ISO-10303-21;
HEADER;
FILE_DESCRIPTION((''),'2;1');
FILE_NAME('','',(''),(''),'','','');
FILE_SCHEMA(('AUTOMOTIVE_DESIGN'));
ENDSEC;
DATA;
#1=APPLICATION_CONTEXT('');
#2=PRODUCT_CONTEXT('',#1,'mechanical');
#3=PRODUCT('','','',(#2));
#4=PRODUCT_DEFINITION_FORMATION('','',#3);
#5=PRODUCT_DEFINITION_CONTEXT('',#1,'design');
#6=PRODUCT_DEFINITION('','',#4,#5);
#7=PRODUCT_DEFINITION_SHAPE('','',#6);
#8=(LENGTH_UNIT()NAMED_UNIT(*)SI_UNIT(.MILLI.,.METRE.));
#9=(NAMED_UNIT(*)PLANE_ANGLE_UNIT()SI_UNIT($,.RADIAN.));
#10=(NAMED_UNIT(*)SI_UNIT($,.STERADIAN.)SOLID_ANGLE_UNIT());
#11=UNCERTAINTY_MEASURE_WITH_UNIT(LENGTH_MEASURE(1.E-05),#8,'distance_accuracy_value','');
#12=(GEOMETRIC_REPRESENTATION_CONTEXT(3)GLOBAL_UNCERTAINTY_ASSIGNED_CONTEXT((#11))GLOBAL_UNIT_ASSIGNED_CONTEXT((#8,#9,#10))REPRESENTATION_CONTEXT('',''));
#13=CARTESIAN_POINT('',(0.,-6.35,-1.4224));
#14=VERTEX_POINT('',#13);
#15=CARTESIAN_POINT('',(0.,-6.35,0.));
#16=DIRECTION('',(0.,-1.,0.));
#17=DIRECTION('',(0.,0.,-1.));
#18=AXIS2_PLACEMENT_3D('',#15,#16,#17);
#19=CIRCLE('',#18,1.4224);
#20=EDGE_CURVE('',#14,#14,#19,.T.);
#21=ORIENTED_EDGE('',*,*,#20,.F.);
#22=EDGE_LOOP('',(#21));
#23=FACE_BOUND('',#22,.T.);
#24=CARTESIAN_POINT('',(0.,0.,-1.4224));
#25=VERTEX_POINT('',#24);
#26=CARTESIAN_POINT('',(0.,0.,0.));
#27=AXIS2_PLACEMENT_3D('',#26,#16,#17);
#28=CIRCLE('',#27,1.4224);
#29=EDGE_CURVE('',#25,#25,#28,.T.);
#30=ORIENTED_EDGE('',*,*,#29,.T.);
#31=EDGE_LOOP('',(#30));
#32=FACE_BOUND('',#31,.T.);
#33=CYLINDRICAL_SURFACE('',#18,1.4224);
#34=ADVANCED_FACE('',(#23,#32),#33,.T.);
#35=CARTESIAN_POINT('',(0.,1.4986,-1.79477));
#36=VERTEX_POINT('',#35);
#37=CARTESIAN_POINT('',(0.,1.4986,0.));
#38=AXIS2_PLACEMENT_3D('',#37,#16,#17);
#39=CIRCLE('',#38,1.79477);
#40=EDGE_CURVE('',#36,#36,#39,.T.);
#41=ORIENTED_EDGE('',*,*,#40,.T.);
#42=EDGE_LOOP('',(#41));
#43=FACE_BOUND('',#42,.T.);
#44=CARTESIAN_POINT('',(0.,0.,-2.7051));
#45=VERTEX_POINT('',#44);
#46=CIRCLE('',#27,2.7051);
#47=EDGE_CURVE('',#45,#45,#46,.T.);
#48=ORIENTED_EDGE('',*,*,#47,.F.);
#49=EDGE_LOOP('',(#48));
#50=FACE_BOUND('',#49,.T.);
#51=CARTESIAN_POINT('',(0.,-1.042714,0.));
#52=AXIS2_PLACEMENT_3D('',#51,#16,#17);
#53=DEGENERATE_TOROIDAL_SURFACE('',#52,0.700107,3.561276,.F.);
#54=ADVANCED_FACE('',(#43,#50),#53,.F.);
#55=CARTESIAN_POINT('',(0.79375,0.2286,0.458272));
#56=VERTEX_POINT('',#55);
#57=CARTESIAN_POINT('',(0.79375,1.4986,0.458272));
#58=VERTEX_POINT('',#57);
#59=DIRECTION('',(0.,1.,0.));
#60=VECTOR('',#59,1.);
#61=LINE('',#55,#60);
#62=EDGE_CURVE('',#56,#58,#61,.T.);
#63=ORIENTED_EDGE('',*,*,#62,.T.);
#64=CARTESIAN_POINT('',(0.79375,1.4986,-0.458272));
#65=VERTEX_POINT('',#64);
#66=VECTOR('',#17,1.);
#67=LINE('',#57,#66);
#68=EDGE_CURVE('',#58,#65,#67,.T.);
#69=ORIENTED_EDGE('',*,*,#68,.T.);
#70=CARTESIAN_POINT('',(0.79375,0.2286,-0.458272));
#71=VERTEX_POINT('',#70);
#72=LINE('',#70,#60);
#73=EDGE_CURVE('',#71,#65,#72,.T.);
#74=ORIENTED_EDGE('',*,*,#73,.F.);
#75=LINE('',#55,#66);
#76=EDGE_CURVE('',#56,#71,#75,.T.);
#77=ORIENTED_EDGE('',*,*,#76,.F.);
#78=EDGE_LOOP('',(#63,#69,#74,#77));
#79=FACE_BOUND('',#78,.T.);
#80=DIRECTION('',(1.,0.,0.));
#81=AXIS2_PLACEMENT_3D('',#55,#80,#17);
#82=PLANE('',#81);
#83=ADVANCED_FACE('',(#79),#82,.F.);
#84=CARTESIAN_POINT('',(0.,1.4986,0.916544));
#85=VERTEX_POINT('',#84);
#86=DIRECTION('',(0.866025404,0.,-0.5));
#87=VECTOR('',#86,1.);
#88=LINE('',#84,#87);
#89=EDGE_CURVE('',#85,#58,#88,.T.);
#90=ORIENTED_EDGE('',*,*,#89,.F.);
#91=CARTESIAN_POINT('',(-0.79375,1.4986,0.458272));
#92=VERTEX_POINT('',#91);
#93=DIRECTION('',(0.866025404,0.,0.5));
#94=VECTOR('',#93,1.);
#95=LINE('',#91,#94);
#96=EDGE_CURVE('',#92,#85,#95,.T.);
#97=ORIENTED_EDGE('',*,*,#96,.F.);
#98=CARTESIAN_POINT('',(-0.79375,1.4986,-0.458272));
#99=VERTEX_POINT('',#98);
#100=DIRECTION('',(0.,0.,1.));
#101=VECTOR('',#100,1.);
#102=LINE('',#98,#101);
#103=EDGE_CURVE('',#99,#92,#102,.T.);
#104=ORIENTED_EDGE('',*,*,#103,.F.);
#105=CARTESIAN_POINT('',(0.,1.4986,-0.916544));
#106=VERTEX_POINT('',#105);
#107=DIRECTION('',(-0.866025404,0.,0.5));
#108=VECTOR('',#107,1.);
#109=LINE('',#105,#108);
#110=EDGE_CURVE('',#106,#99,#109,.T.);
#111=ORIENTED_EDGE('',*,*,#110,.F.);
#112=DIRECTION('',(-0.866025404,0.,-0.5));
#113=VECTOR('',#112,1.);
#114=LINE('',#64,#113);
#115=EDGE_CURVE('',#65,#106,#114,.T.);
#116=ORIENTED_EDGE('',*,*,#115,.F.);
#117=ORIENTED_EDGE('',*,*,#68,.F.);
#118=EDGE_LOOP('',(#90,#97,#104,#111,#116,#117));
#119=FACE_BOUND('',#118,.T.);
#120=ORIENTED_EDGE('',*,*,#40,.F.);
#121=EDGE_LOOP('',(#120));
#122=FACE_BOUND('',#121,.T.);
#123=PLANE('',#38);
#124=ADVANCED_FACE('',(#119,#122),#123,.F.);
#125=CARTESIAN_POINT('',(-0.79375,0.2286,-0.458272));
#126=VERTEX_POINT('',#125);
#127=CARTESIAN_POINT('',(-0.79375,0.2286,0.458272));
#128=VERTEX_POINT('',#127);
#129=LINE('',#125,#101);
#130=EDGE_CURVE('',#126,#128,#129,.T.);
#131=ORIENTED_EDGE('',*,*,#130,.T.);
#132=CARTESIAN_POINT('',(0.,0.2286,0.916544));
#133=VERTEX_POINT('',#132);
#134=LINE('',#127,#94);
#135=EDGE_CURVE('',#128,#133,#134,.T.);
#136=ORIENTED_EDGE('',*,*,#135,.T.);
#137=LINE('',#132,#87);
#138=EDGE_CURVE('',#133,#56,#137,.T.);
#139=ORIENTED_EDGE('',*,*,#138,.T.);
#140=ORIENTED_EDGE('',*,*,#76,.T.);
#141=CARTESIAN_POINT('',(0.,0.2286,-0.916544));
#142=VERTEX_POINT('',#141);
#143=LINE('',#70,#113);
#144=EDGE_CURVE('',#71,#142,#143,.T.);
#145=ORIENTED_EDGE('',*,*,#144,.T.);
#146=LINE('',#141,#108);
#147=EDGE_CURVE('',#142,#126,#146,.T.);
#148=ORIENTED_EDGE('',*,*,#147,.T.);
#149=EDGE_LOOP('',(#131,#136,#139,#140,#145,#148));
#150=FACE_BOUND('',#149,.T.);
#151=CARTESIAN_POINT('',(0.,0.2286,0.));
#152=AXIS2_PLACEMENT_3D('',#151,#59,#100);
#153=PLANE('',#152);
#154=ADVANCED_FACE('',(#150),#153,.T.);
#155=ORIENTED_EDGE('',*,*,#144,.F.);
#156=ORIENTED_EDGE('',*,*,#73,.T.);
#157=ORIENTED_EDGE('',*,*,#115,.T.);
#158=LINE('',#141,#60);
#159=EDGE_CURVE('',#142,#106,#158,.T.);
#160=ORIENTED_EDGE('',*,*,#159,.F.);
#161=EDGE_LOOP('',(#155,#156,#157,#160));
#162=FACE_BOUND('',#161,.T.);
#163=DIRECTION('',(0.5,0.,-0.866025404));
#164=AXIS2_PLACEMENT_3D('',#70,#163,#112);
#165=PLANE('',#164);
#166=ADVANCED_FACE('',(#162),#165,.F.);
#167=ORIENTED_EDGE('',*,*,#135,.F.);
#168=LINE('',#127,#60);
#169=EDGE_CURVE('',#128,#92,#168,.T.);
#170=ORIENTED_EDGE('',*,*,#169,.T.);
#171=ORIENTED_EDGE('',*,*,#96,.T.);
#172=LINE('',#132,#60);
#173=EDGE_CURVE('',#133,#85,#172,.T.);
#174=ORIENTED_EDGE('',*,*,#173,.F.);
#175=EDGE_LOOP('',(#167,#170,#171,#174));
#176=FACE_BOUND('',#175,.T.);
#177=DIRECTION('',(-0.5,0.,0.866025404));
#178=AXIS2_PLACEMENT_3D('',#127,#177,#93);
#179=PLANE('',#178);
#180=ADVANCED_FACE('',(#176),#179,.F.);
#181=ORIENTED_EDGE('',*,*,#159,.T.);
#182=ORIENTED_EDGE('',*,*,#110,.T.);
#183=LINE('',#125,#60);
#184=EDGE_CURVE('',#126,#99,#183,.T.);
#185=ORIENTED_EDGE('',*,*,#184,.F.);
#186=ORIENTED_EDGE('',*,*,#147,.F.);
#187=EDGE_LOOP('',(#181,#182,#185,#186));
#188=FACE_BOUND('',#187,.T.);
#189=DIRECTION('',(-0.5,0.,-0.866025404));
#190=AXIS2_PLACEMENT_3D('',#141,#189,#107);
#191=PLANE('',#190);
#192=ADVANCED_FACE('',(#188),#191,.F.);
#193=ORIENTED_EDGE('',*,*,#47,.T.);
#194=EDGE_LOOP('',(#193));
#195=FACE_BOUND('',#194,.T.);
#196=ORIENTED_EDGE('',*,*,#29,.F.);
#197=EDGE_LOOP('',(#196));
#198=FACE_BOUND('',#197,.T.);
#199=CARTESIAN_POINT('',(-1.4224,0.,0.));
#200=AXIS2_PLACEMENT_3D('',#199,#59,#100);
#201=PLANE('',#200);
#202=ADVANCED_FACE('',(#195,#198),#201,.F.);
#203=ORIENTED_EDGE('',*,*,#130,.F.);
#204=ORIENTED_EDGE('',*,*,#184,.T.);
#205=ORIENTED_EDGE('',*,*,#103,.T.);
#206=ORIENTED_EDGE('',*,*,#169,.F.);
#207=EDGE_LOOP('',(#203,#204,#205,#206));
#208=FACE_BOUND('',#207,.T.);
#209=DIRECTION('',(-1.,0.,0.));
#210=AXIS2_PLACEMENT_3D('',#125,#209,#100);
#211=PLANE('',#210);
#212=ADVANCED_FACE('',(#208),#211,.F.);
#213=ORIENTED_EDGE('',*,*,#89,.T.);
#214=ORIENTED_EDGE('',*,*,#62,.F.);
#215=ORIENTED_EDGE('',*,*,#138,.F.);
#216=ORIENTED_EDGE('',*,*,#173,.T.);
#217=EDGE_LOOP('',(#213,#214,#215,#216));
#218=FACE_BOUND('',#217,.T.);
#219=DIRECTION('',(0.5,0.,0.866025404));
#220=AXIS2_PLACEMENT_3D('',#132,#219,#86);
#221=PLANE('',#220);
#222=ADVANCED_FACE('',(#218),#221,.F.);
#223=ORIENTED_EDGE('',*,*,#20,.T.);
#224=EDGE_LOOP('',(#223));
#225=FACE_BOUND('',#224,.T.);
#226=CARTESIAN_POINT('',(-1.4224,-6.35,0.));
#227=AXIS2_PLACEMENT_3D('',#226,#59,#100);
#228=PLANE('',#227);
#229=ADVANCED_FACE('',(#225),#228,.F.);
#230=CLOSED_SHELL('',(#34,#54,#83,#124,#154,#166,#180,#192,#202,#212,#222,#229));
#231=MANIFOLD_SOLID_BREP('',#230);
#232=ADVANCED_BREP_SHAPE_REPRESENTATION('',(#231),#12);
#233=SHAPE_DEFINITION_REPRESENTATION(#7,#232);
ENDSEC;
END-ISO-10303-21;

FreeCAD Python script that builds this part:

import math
import FreeCAD as App
import Part
import Sketcher
from FreeCAD import Vector
Q = App.Units.Quantity


def add_polygon(sketch, points):
    """Adds a closed chain of lines whose ends are joined by coincident constraints."""
    first, n = sketch.GeometryCount, len(points)
    for a, b in zip(points, points[1:] + points[:1]):
        sketch.addGeometry(Part.LineSegment(App.Vector(*a, 0), App.Vector(*b, 0)), False)
    for i in range(n):
        sketch.addConstraint(Sketcher.Constraint("Coincident", first + i, 2, first + (i + 1) % n, 1))

doc = App.newDocument("Part")
body = doc.addObject("PartDesign::Body", "Body")

# Sketch on XY plane
sketch1 = body.newObject("Sketcher::SketchObject", "Sketch")
sketch1.AttachmentSupport = (doc.getObject("XY_Plane"), [""])
sketch1.MapMode = "FlatFace"
sketch1.addGeometry(Part.LineSegment(Vector(-2.7051, 0, 0), Vector(-1.4224, 0, 0)), False)
sketch1.addGeometry(Part.LineSegment(Vector(-1.4224, 0, 0), Vector(-1.4224, -6.35, 0)), False)
sketch1.addGeometry(Part.LineSegment(Vector(-1.4224, -6.35, 0), Vector(0, -6.35, 0)), False)
sketch1.addGeometry(Part.LineSegment(Vector(0, -6.35, 0), Vector(0, 1.4986, 0)), False)
sketch1.addGeometry(Part.LineSegment(Vector(0, 1.4986, 0), Vector(-1.79477, 1.4986, 0)), False)
sketch1.addGeometry(Part.ArcOfCircle(Part.Circle(Vector(0.700107, -1.042714, 0), Vector(0, 0, 1), 3.561276), math.radians(134.471714), math.radians(162.974808)), False)
sketch1.addConstraint(Sketcher.Constraint("Coincident", 0, 2, 1, 1))
sketch1.addConstraint(Sketcher.Constraint("Coincident", 1, 2, 2, 1))
sketch1.addConstraint(Sketcher.Constraint("Coincident", 2, 2, 3, 1))
sketch1.addConstraint(Sketcher.Constraint("Coincident", 3, 2, 4, 1))
sketch1.addConstraint(Sketcher.Constraint("Coincident", 4, 2, 5, 1))
sketch1.addConstraint(Sketcher.Constraint("Coincident", 5, 2, 0, 1))
sketch1.addConstraint(Sketcher.Constraint("Horizontal", 0))
sketch1.addConstraint(Sketcher.Constraint("Vertical", 1))
sketch1.addConstraint(Sketcher.Constraint("Horizontal", 2))
sketch1.addConstraint(Sketcher.Constraint("Vertical", 3))
sketch1.addConstraint(Sketcher.Constraint("Horizontal", 4))
sketch1.addConstraint(Sketcher.Constraint("PointOnObject", 0, 2, -1))
sketch1.addConstraint(Sketcher.Constraint("PointOnObject", 2, 2, -2))
sketch1.addConstraint(Sketcher.Constraint("DistanceY", 1, 2, 1, 1, Q("0.25 in")))
sketch1.addConstraint(Sketcher.Constraint("DistanceX", 2, 1, 2, 2, Q("0.056 in")))
sketch1.addConstraint(Sketcher.Constraint("DistanceY", 3, 1, 3, 2, Q("0.309 in")))
sketch1.addConstraint(Sketcher.Constraint("DistanceX", 0, 1, 0, 2, Q("0.0505 in")))
sketch1.addConstraint(Sketcher.Constraint("Radius", 5, 3.561276))
sketch1.addConstraint(Sketcher.Constraint("DistanceX", 4, 2, 4, 1, 1.79477))
revolution = body.newObject("PartDesign::Revolution", "Revolution")
revolution.Profile = sketch1
revolution.ReferenceAxis = (sketch1, ["V_Axis"])
revolution.Angle = 360

# Sketch on XZ plane
sketch2 = body.newObject("Sketcher::SketchObject", "Sketch001")
sketch2.AttachmentSupport = (doc.getObject("XZ_Plane"), [""])
sketch2.MapMode = "FlatFace"
sketch2.AttachmentOffset = App.Placement(Vector(0, 0, -0.059 * 25.4), App.Rotation())
add_polygon(sketch2, [(-0.79375, -0.458272), (-0.79375, 0.458272), (0, 0.916544), (0.79375, 0.458272), (0.79375, -0.458272), (0, -0.916544)])  # lines 0-5
sketch2.addConstraint(Sketcher.Constraint("Vertical", 0))
sketch2.addConstraint(Sketcher.Constraint("Vertical", 3))
sketch2.addConstraint(Sketcher.Constraint("Symmetric", 0, 2, 3, 2, -1, 1))
sketch2.addConstraint(Sketcher.Constraint("Symmetric", 1, 2, 4, 2, -1, 1))
sketch2.addConstraint(Sketcher.Constraint("PointOnObject", 1, 2, -2))
sketch2.addConstraint(Sketcher.Constraint("Parallel", 2, 5))
sketch2.addConstraint(Sketcher.Constraint("Horizontal", 0, 2, 2, 2))
sketch2.addConstraint(Sketcher.Constraint("Angle", 1, Q("30 deg")))
sketch2.addConstraint(Sketcher.Constraint("DistanceX", 0, 2, -1, 1, Q("0.03125 in")))
sketch2.addConstraint(Sketcher.Constraint("DistanceY", 0, 1, 0, 2, 0.916544))
pocket1 = body.newObject("PartDesign::Pocket", "Pocket")
pocket1.Profile = sketch2
pocket1.Length = Q("0.05 in")
pocket1.Reversed = True

doc.recompute()
